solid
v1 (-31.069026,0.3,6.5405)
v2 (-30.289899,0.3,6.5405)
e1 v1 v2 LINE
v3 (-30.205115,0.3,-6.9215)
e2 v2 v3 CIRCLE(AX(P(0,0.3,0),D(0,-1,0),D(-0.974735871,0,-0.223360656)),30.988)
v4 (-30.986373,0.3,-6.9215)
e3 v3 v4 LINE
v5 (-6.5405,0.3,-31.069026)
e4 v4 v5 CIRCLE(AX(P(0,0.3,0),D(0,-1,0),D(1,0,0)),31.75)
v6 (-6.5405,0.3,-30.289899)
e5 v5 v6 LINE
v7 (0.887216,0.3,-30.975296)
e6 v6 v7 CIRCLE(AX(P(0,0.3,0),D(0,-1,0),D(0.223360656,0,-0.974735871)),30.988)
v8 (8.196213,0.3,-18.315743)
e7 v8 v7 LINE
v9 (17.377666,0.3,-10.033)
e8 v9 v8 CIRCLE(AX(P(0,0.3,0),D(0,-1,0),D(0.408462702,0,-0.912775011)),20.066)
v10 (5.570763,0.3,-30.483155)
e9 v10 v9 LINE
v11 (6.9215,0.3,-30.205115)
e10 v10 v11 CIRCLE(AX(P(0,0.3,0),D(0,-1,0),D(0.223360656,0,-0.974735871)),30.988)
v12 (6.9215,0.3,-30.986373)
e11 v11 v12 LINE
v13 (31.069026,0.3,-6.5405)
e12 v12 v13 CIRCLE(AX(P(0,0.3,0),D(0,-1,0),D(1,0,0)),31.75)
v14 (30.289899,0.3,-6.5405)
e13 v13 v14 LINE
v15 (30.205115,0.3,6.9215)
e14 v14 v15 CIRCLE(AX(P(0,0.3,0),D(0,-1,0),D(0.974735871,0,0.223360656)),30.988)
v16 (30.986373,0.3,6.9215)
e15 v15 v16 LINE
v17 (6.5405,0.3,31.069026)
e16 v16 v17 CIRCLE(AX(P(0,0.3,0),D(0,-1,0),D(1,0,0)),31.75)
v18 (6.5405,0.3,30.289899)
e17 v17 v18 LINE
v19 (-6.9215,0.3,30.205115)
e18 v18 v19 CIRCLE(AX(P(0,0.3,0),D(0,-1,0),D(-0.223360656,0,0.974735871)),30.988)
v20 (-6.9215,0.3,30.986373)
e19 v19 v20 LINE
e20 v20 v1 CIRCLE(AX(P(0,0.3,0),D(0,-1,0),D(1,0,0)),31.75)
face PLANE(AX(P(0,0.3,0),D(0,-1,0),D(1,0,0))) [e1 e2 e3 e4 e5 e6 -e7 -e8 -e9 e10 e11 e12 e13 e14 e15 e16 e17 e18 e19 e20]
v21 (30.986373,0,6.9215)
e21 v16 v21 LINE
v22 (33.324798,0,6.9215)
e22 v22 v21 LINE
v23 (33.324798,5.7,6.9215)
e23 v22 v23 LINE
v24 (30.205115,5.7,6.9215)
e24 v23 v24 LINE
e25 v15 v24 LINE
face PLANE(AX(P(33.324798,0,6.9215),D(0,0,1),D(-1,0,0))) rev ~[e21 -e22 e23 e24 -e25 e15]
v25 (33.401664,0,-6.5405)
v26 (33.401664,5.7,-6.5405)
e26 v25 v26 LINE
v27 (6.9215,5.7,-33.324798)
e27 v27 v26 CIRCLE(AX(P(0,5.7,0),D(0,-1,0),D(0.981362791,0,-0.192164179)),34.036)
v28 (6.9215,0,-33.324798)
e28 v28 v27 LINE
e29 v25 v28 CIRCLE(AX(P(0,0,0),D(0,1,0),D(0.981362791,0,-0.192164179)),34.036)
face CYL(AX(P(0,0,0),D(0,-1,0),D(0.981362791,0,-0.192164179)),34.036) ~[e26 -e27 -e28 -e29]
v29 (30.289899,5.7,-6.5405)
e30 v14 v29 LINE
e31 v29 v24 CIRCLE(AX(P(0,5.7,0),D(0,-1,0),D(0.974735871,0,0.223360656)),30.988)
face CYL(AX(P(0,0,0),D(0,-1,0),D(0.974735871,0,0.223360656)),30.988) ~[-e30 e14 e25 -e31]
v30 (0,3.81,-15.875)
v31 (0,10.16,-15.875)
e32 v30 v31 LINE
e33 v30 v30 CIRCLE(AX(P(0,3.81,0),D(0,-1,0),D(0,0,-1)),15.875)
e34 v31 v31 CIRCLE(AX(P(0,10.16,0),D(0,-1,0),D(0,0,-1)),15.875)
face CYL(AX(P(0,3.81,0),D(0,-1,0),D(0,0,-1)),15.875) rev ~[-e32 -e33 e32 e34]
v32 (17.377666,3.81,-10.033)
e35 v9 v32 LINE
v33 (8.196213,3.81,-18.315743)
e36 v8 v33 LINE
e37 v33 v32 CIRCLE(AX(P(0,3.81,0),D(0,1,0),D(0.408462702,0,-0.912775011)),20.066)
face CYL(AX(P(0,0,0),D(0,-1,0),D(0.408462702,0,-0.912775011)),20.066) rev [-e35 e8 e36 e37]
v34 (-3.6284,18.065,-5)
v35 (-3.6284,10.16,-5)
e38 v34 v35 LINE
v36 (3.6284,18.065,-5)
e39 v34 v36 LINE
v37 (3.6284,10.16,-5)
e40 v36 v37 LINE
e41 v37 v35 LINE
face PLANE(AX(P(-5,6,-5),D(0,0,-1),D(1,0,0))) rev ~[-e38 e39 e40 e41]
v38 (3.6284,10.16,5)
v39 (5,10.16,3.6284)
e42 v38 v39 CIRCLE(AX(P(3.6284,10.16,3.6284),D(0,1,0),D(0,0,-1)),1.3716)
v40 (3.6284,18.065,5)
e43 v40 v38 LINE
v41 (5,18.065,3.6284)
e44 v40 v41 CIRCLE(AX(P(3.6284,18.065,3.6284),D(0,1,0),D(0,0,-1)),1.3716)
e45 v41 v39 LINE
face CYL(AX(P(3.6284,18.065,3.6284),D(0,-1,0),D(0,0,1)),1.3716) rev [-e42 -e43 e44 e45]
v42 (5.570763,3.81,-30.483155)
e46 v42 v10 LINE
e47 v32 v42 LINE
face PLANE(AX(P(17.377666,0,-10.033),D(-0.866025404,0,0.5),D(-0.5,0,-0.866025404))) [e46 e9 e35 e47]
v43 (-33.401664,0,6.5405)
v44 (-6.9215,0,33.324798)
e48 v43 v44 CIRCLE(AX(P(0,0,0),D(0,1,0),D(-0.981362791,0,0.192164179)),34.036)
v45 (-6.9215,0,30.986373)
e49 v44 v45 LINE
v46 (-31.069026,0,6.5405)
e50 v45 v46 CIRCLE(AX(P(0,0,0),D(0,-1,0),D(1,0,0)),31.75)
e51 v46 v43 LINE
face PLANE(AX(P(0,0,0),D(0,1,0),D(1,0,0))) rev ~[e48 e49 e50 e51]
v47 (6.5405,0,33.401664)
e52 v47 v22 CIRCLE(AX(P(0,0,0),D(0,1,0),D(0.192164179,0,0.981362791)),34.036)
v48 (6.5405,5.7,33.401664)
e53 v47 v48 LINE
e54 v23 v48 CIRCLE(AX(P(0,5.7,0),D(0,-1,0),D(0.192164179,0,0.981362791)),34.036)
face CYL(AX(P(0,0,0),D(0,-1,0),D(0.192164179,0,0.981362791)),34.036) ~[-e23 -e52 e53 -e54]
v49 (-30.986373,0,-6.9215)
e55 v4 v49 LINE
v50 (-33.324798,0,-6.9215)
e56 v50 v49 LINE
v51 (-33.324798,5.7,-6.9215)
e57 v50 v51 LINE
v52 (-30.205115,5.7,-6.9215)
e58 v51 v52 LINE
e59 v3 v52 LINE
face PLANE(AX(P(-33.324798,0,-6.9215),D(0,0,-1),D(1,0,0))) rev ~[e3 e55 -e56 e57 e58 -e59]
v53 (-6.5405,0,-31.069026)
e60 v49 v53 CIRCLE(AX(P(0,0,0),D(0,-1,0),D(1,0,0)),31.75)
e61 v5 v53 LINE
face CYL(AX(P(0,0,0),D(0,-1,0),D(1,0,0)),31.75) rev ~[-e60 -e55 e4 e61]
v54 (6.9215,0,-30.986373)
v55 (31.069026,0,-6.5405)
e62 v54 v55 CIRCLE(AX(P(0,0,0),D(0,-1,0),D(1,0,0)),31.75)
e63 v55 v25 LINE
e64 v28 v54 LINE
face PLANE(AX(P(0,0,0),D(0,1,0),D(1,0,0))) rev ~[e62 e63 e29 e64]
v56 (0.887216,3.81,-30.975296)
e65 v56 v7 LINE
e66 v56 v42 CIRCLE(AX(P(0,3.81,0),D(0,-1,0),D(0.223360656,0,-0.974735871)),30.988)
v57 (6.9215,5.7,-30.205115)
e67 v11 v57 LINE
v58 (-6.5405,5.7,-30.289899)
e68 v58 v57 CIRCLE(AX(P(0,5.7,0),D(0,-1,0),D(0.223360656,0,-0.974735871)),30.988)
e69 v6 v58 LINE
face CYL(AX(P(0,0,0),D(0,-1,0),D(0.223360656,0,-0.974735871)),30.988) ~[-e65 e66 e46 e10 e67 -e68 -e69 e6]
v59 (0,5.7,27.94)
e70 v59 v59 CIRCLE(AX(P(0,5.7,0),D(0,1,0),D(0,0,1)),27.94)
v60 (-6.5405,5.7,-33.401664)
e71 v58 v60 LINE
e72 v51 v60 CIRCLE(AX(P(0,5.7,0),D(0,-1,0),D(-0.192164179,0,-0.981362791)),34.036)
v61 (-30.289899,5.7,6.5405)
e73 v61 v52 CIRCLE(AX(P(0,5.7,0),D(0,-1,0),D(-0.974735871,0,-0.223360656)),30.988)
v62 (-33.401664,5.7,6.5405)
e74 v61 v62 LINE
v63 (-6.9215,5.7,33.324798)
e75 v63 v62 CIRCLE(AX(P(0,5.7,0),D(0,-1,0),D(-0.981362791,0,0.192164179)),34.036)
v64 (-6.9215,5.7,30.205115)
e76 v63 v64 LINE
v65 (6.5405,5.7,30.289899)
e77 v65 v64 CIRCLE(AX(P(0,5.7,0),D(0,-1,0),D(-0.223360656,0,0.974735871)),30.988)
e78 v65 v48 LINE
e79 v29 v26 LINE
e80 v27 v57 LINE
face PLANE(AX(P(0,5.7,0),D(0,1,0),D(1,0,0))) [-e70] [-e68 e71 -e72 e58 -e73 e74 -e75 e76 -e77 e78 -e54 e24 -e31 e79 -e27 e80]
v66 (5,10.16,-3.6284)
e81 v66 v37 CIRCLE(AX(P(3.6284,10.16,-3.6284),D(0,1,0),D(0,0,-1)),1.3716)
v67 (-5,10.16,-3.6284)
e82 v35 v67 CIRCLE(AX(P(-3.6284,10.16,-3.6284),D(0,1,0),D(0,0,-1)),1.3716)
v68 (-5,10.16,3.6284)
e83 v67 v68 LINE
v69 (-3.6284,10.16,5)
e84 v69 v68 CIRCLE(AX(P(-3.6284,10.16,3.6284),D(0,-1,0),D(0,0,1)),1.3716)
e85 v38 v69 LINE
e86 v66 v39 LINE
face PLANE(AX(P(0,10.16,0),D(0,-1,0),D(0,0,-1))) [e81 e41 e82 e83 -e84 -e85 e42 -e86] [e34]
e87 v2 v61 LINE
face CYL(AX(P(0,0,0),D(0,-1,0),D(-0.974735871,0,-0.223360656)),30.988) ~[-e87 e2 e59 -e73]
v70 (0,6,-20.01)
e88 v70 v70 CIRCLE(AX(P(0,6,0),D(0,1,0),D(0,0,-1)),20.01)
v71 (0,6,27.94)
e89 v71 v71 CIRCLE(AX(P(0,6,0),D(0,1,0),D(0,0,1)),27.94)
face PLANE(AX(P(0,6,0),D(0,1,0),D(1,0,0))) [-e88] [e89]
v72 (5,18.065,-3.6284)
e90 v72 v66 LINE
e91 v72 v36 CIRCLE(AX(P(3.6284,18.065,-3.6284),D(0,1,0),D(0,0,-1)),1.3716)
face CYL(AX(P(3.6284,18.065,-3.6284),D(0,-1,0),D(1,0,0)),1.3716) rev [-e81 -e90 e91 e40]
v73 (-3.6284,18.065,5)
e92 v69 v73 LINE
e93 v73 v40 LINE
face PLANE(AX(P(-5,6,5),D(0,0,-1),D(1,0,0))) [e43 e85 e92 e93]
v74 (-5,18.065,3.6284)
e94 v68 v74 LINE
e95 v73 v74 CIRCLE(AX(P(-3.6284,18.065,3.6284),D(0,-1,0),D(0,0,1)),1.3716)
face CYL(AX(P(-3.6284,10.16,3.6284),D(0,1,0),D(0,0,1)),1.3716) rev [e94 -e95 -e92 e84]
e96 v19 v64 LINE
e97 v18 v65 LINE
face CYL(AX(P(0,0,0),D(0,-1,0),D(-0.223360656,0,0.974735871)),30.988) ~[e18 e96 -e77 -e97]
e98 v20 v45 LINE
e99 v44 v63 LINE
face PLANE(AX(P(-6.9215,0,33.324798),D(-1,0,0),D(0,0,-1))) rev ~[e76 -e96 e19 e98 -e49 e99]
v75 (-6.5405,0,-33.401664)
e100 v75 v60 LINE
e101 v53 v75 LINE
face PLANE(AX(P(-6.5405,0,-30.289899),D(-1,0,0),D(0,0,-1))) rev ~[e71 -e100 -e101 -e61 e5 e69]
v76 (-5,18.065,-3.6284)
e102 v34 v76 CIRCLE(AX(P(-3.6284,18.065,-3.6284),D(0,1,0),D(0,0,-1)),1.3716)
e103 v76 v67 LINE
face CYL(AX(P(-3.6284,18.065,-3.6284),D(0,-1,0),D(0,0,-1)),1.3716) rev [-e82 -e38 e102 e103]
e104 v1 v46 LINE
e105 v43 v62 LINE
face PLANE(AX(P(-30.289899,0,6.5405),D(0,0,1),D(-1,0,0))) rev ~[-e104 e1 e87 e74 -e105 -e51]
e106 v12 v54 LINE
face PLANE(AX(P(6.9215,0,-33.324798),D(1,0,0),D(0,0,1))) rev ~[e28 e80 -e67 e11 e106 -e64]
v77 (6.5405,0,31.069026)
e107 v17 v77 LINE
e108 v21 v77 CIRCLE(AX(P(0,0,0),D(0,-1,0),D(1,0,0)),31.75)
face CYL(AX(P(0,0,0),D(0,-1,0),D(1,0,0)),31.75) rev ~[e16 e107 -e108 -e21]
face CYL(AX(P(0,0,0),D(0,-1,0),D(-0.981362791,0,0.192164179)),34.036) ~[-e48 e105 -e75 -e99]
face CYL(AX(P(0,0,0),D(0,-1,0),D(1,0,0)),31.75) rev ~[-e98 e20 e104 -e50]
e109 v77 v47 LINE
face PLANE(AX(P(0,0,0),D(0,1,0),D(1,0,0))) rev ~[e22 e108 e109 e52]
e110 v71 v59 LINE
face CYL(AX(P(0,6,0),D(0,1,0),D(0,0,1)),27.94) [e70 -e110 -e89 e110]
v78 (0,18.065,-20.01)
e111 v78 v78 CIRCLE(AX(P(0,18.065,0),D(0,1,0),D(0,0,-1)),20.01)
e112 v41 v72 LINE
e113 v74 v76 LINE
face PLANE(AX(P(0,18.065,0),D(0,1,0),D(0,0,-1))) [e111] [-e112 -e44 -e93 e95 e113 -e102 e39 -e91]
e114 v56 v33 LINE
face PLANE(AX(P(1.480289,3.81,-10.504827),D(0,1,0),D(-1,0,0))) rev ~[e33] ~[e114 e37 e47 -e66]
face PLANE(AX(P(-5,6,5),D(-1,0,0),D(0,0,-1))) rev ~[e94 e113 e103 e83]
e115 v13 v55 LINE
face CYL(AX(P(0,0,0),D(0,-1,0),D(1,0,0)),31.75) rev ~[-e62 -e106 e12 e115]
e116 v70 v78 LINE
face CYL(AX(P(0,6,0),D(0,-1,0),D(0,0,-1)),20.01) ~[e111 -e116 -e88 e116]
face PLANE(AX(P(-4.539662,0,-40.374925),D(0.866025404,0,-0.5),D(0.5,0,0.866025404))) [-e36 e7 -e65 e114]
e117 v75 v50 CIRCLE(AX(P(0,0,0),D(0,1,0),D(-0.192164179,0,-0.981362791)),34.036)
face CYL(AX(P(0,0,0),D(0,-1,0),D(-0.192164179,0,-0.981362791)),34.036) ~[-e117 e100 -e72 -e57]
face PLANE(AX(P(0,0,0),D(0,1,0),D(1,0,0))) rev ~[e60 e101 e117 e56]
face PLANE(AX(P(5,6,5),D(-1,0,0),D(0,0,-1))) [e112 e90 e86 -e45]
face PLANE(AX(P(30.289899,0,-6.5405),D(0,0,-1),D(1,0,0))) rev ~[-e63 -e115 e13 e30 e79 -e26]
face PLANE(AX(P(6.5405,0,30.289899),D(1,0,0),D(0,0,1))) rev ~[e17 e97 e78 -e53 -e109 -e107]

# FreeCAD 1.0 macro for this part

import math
import FreeCAD as App
import Part
import Sketcher

V = App.Vector
Q = App.Units.Quantity


def edges_at(feature, points):
    """Names of the edges that pass closest to the given points."""
    edges = feature.Shape.Edges
    near = lambda p: min(range(len(edges)), key=lambda i: edges[i].distToShape(Part.Vertex(*p))[0])
    return sorted({f"Edge{near(p) + 1}" for p in points})


def add_polygon(sketch, points):
    """Adds a closed chain of lines whose ends are joined by coincident constraints."""
    first, n = sketch.GeometryCount, len(points)
    for a, b in zip(points, points[1:] + points[:1]):
        sketch.addGeometry(Part.LineSegment(App.Vector(*a, 0), App.Vector(*b, 0)), False)
    for i in range(n):
        sketch.addConstraint(Sketcher.Constraint("Coincident", first + i, 2, first + (i + 1) % n, 1))

doc = App.newDocument("Part")
params = doc.addObject("Spreadsheet::Sheet", "Params")
for row, (alias, value) in enumerate([
    ("sketch1_radius", "1.34 in"),
    ("sketch1_radius2", "1.22 in"),
    ("pad1_length", "6 mm"),
    ("sketch2_radius", "0.79 in"),
    ("pocket1_length", "0.15 in"),
    ("sketch3_diameter", "2.5 in"),
    ("pocket2_length", "0.3 mm"),
    ("pad2_length", "0.475 in"),
    ("sketch5_diameter", "1.25 in"),
    ("pocket3_length", "0.25 in"),
    ("fillet_radius", "0.054 in"),
    ("sketch6_diameter", "2.2 in"),
    ("pocket4_length", "0.3 mm"),
], start=1):
    params.set(f"A{row}", alias)
    params.set(f"B{row}", "=" + value)
    params.setAlias(f"B{row}", alias)

body = doc.addObject("PartDesign::Body", "Body")

# Sketch on XZ plane
sketch1 = body.newObject("Sketcher::SketchObject", "Sketch")
sketch1.AttachmentSupport = (doc.getObject("XZ_Plane"), [""])
sketch1.MapMode = "FlatFace"
sketch1.addGeometry(Part.LineSegment(V(30.3, -6.5, 0), V(33.4, -6.5, 0)), False)  # 0
sketch1.addGeometry(Part.ArcOfCircle(Part.Circle(V(0, 0, 0), V(0, 0, 1), 34), math.radians(-78), math.radians(-11)), False)  # 1
sketch1.addGeometry(Part.LineSegment(V(6.9, -33.3, 0), V(6.9, -30.2, 0)), False)  # 2
sketch1.addGeometry(Part.ArcOfCircle(Part.Circle(V(0, 0, 0), V(0, 0, 1), 31), math.radians(-102), math.radians(-77)), False)  # 3
sketch1.addGeometry(Part.LineSegment(V(-6.5, -30.3, 0), V(-6.5, -33.4, 0)), False)  # 4
sketch1.addGeometry(Part.ArcOfCircle(Part.Circle(V(0, 0, 0), V(0, 0, 1), 34), math.radians(-168), math.radians(-101)), False)  # 5
sketch1.addGeometry(Part.LineSegment(V(-33.3, -6.9, 0), V(-30.2, -6.9, 0)), False)  # 6
sketch1.addGeometry(Part.ArcOfCircle(Part.Circle(V(0, 0, 0), V(0, 0, 1), 31), math.radians(168), math.radians(193)), False)  # 7
sketch1.addGeometry(Part.LineSegment(V(-30.3, 6.5, 0), V(-33.4, 6.5, 0)), False)  # 8
sketch1.addGeometry(Part.ArcOfCircle(Part.Circle(V(0, 0, 0), V(0, 0, 1), 34), math.radians(102), math.radians(169)), False)  # 9
sketch1.addGeometry(Part.LineSegment(V(-6.9, 33.3, 0), V(-6.9, 30.2, 0)), False)  # 10
sketch1.addGeometry(Part.ArcOfCircle(Part.Circle(V(0, 0, 0), V(0, 0, 1), 31), math.radians(78), math.radians(103)), False)  # 11
sketch1.addGeometry(Part.LineSegment(V(6.5, 30.3, 0), V(6.5, 33.4, 0)), False)  # 12
sketch1.addGeometry(Part.ArcOfCircle(Part.Circle(V(0, 0, 0), V(0, 0, 1), 34), math.radians(12), math.radians(79)), False)  # 13
sketch1.addGeometry(Part.LineSegment(V(33.3, 6.9, 0), V(30.2, 6.9, 0)), False)  # 14
sketch1.addGeometry(Part.ArcOfCircle(Part.Circle(V(0, 0, 0), V(0, 0, 1), 31), math.radians(-12), math.radians(13)), False)  # 15
add_polygon(sketch1, [(5, 5), (-5, 5), (-5, -5), (5, -5)])  # lines 16-19
sketch1.addConstraint(Sketcher.Constraint("Coincident", 0, 2, 1, 2))
sketch1.addConstraint(Sketcher.Constraint("Coincident", 1, 1, 2, 1))
sketch1.addConstraint(Sketcher.Constraint("Coincident", 2, 2, 3, 2))
sketch1.addConstraint(Sketcher.Constraint("Coincident", 3, 1, 4, 1))
sketch1.addConstraint(Sketcher.Constraint("Coincident", 4, 2, 5, 2))
sketch1.addConstraint(Sketcher.Constraint("Coincident", 5, 1, 6, 1))
sketch1.addConstraint(Sketcher.Constraint("Coincident", 6, 2, 7, 2))
sketch1.addConstraint(Sketcher.Constraint("Coincident", 7, 1, 8, 1))
sketch1.addConstraint(Sketcher.Constraint("Coincident", 8, 2, 9, 2))
sketch1.addConstraint(Sketcher.Constraint("Coincident", 9, 1, 10, 1))
sketch1.addConstraint(Sketcher.Constraint("Coincident", 10, 2, 11, 2))
sketch1.addConstraint(Sketcher.Constraint("Coincident", 11, 1, 12, 1))
sketch1.addConstraint(Sketcher.Constraint("Coincident", 12, 2, 13, 2))
sketch1.addConstraint(Sketcher.Constraint("Coincident", 13, 1, 14, 1))
sketch1.addConstraint(Sketcher.Constraint("Coincident", 14, 2, 15, 2))
sketch1.addConstraint(Sketcher.Constraint("Coincident", 15, 1, 0, 1))
sketch1.addConstraint(Sketcher.Constraint("Horizontal", 0))
sketch1.addConstraint(Sketcher.Constraint("Vertical", 2))
sketch1.addConstraint(Sketcher.Constraint("Vertical", 4))
sketch1.addConstraint(Sketcher.Constraint("Horizontal", 6))
sketch1.addConstraint(Sketcher.Constraint("Horizontal", 8))
sketch1.addConstraint(Sketcher.Constraint("Vertical", 10))
sketch1.addConstraint(Sketcher.Constraint("Vertical", 12))
sketch1.addConstraint(Sketcher.Constraint("Horizontal", 14))
sketch1.addConstraint(Sketcher.Constraint("Horizontal", 16))
sketch1.addConstraint(Sketcher.Constraint("Vertical", 17))
sketch1.addConstraint(Sketcher.Constraint("Horizontal", 18))
sketch1.addConstraint(Sketcher.Constraint("Vertical", 19))
sketch1.addConstraint(Sketcher.Constraint("Coincident", 1, 3, -1, 1))
sketch1.addConstraint(Sketcher.Constraint("Coincident", 3, 3, -1, 1))
sketch1.addConstraint(Sketcher.Constraint("Coincident", 5, 3, -1, 1))
sketch1.addConstraint(Sketcher.Constraint("Coincident", 7, 3, -1, 1))
sketch1.addConstraint(Sketcher.Constraint("Coincident", 9, 3, -1, 1))
sketch1.addConstraint(Sketcher.Constraint("Coincident", 11, 3, -1, 1))
sketch1.addConstraint(Sketcher.Constraint("Coincident", 13, 3, -1, 1))
sketch1.addConstraint(Sketcher.Constraint("Coincident", 15, 3, -1, 1))
sketch1.addConstraint(Sketcher.Constraint("Equal", 1, 5))
sketch1.addConstraint(Sketcher.Constraint("Equal", 3, 7))
sketch1.addConstraint(Sketcher.Constraint("Equal", 5, 9))
sketch1.addConstraint(Sketcher.Constraint("Equal", 7, 11))
sketch1.addConstraint(Sketcher.Constraint("Equal", 9, 13))
sketch1.addConstraint(Sketcher.Constraint("Equal", 11, 15))
sketch1.addConstraint(Sketcher.Constraint("Symmetric", 16, 2, 18, 2, -1, 1))
sketch1.addConstraint(Sketcher.Constraint("Equal", 0, 8))
sketch1.addConstraint(Sketcher.Constraint("Equal", 6, 14))
sketch1.addConstraint(Sketcher.Constraint("Equal", 14, 2))
sketch1.addConstraint(Sketcher.Constraint("Equal", 8, 4))
sketch1.addConstraint(Sketcher.Constraint("Equal", 2, 10))
sketch1.addConstraint(Sketcher.Constraint("Equal", 4, 12))
sketch1.addConstraint(Sketcher.Constraint("Equal", 18, 17))
sketch1.addConstraint(Sketcher.Constraint("Radius", 1, Q("1.34 in")))
sketch1.addConstraint(Sketcher.Constraint("Radius", 3, Q("1.22 in")))
sketch1.addConstraint(Sketcher.Constraint("DistanceX", 3, 1, 2, 2, Q("0.53 in")))
sketch1.addConstraint(Sketcher.Constraint("DistanceY", 1, 1, -1, 1, Q("1.3119999 in")))
sketch1.addConstraint(Sketcher.Constraint("DistanceX", 16, 2, 16, 1, Q("10 mm")))
sketch1.setExpression("Constraints[54]", "Params.sketch1_radius")
sketch1.setExpression("Constraints[55]", "Params.sketch1_radius2")
pad1 = body.newObject("PartDesign::Pad", "Pad")
pad1.Profile = sketch1
pad1.setExpression("Length", "Params.pad1_length")
pad1.Reversed = True

# Sketch on XZ plane
sketch2 = body.newObject("Sketcher::SketchObject", "Sketch001")
sketch2.AttachmentSupport = (doc.getObject("XZ_Plane"), [""])
sketch2.MapMode = "FlatFace"
sketch2.addGeometry(Part.LineSegment(V(-0.3, -40.6, 0), V(17.4, -10, 0)), False)
sketch2.addGeometry(Part.ArcOfCircle(Part.Circle(V(0, 0, 0), V(0, 0, 1), 20.1), math.radians(-30), math.radians(294)), False)
sketch2.addGeometry(Part.LineSegment(V(8.2, -18.3, 0), V(-4.5, -40.4, 0)), False)
sketch2.addGeometry(Part.ArcOfCircle(Part.Circle(V(0, 0, 0), V(0, 0, 1), 40.6), math.radians(-96.42), math.radians(-90.4)), False)
sketch2.addConstraint(Sketcher.Constraint("Tangent", 0, 2, 1, 1))
sketch2.addConstraint(Sketcher.Constraint("Coincident", 1, 2, 2, 1))
sketch2.addConstraint(Sketcher.Constraint("Coincident", 2, 2, 3, 1))
sketch2.addConstraint(Sketcher.Constraint("Coincident", 3, 2, 0, 1))
sketch2.addConstraint(Sketcher.Constraint("Coincident", 1, 3, -1, 1))
sketch2.addConstraint(Sketcher.Constraint("Coincident", 3, 3, -1, 1))
sketch2.addConstraint(Sketcher.Constraint("Parallel", 0, 2))
sketch2.addConstraint(Sketcher.Constraint("Radius", 1, Q("0.79 in")))
sketch2.addConstraint(Sketcher.Constraint("Angle", 0, Q("60 deg")))
sketch2.addConstraint(Sketcher.Constraint("Radius", 3, Q("40.629337 mm")))
sketch2.addConstraint(Sketcher.Constraint("Distance", 2, Q("25.471749 mm")))
sketch2.setExpression("Constraints[7]", "Params.sketch2_radius")
pocket1 = body.newObject("PartDesign::Pocket", "Pocket")
pocket1.Profile = sketch2
pocket1.setExpression("Length", "Params.pocket1_length")

# Sketch on XZ plane
sketch3 = body.newObject("Sketcher::SketchObject", "Sketch002")
sketch3.AttachmentSupport = (doc.getObject("XZ_Plane"), [""])
sketch3.MapMode = "FlatFace"
sketch3.addGeometry(Part.Circle(V(0, 0, 0), V(0, 0, 1), 32), False)
sketch3.addConstraint(Sketcher.Constraint("Coincident", 0, 3, -1, 1))
sketch3.addConstraint(Sketcher.Constraint("Diameter", 0, Q("2.5 in")))
sketch3.setExpression("Constraints[1]", "Params.sketch3_diameter")
pocket2 = body.newObject("PartDesign::Pocket", "Pocket001")
pocket2.Profile = sketch3
pocket2.setExpression("Length", "Params.pocket2_length")

# Sketch on XZ plane
sketch4 = body.newObject("Sketcher::SketchObject", "Sketch003")
sketch4.AttachmentSupport = (doc.getObject("XZ_Plane"), [""])
sketch4.MapMode = "FlatFace"
sketch4.AttachmentOffset = App.Placement(V(0, 0, -6), App.Rotation())
sketch4.addGeometry(Part.Circle(V(0, 0, 0), V(0, 0, 1), 20), False)  # 0
add_polygon(sketch4, [(5, 5), (-5, 5), (-5, -5), (5, -5)])  # lines 1-4
sketch4.addConstraint(Sketcher.Constraint("Horizontal", 1))
sketch4.addConstraint(Sketcher.Constraint("Vertical", 2))
sketch4.addConstraint(Sketcher.Constraint("Horizontal", 3))
sketch4.addConstraint(Sketcher.Constraint("Vertical", 4))
sketch4.addConstraint(Sketcher.Constraint("Coincident", 0, 3, -1, 1))
sketch4.addConstraint(Sketcher.Constraint("Symmetric", 1, 2, 3, 2, -1, 1))
sketch4.addConstraint(Sketcher.Constraint("Equal", 3, 2))
sketch4.addConstraint(Sketcher.Constraint("Diameter", 0, Q("40.02 mm")))
sketch4.addConstraint(Sketcher.Constraint("DistanceX", 1, 2, 1, 1, Q("10 mm")))
pad2 = body.newObject("PartDesign::Pad", "Pad001")
pad2.Profile = sketch4
pad2.setExpression("Length", "Params.pad2_length")
pad2.Reversed = True

# Sketch on XZ plane
sketch5 = body.newObject("Sketcher::SketchObject", "Sketch004")
sketch5.AttachmentSupport = (doc.getObject("XZ_Plane"), [""])
sketch5.MapMode = "FlatFace"
sketch5.AttachmentOffset = App.Placement(V(0, 0, -0.15 * 25.4), App.Rotation())
sketch5.addGeometry(Part.Circle(V(0, 0, 0), V(0, 0, 1), 16), False)
sketch5.addConstraint(Sketcher.Constraint("Coincident", 0, 3, -1, 1))
sketch5.addConstraint(Sketcher.Constraint("Diameter", 0, Q("1.25 in")))
sketch5.setExpression("Constraints[1]", "Params.sketch5_diameter")
pocket3 = body.newObject("PartDesign::Pocket", "Pocket002")
pocket3.Profile = sketch5
pocket3.setExpression("Length", "Params.pocket3_length")
doc.recompute()

fillet = body.newObject("PartDesign::Fillet", "Fillet")
fillet.Base = (pocket3, edges_at(pocket3, [
    (5, 14.113, -5),
    (-5, 14.113, -5),
    (-5, 14.113, 5),
    (5, 14.113, 5),
]))
fillet.setExpression("Radius", "Params.fillet_radius")

# Sketch on XZ plane
sketch6 = body.newObject("Sketcher::SketchObject", "Sketch005")
sketch6.AttachmentSupport = (doc.getObject("XZ_Plane"), [""])
sketch6.MapMode = "FlatFace"
sketch6.AttachmentOffset = App.Placement(V(0, 0, -6), App.Rotation())
sketch6.addGeometry(Part.Circle(V(0, 0, 0), V(0, 0, 1), 55), False)
sketch6.addGeometry(Part.Circle(V(0, 0, 0), V(0, 0, 1), 28), False)
sketch6.addConstraint(Sketcher.Constraint("Coincident", 0, 3, -1, 1))
sketch6.addConstraint(Sketcher.Constraint("Coincident", 1, 3, -1, 1))
sketch6.addConstraint(Sketcher.Constraint("Diameter", 1, Q("2.2 in")))
sketch6.addConstraint(Sketcher.Constraint("Diameter", 0, Q("109.940274 mm")))
sketch6.setExpression("Constraints[2]", "Params.sketch6_diameter")
pocket4 = body.newObject("PartDesign::Pocket", "Pocket003")
pocket4.Profile = sketch6
pocket4.setExpression("Length", "Params.pocket4_length")
pocket4.Reversed = True

doc.recompute()
